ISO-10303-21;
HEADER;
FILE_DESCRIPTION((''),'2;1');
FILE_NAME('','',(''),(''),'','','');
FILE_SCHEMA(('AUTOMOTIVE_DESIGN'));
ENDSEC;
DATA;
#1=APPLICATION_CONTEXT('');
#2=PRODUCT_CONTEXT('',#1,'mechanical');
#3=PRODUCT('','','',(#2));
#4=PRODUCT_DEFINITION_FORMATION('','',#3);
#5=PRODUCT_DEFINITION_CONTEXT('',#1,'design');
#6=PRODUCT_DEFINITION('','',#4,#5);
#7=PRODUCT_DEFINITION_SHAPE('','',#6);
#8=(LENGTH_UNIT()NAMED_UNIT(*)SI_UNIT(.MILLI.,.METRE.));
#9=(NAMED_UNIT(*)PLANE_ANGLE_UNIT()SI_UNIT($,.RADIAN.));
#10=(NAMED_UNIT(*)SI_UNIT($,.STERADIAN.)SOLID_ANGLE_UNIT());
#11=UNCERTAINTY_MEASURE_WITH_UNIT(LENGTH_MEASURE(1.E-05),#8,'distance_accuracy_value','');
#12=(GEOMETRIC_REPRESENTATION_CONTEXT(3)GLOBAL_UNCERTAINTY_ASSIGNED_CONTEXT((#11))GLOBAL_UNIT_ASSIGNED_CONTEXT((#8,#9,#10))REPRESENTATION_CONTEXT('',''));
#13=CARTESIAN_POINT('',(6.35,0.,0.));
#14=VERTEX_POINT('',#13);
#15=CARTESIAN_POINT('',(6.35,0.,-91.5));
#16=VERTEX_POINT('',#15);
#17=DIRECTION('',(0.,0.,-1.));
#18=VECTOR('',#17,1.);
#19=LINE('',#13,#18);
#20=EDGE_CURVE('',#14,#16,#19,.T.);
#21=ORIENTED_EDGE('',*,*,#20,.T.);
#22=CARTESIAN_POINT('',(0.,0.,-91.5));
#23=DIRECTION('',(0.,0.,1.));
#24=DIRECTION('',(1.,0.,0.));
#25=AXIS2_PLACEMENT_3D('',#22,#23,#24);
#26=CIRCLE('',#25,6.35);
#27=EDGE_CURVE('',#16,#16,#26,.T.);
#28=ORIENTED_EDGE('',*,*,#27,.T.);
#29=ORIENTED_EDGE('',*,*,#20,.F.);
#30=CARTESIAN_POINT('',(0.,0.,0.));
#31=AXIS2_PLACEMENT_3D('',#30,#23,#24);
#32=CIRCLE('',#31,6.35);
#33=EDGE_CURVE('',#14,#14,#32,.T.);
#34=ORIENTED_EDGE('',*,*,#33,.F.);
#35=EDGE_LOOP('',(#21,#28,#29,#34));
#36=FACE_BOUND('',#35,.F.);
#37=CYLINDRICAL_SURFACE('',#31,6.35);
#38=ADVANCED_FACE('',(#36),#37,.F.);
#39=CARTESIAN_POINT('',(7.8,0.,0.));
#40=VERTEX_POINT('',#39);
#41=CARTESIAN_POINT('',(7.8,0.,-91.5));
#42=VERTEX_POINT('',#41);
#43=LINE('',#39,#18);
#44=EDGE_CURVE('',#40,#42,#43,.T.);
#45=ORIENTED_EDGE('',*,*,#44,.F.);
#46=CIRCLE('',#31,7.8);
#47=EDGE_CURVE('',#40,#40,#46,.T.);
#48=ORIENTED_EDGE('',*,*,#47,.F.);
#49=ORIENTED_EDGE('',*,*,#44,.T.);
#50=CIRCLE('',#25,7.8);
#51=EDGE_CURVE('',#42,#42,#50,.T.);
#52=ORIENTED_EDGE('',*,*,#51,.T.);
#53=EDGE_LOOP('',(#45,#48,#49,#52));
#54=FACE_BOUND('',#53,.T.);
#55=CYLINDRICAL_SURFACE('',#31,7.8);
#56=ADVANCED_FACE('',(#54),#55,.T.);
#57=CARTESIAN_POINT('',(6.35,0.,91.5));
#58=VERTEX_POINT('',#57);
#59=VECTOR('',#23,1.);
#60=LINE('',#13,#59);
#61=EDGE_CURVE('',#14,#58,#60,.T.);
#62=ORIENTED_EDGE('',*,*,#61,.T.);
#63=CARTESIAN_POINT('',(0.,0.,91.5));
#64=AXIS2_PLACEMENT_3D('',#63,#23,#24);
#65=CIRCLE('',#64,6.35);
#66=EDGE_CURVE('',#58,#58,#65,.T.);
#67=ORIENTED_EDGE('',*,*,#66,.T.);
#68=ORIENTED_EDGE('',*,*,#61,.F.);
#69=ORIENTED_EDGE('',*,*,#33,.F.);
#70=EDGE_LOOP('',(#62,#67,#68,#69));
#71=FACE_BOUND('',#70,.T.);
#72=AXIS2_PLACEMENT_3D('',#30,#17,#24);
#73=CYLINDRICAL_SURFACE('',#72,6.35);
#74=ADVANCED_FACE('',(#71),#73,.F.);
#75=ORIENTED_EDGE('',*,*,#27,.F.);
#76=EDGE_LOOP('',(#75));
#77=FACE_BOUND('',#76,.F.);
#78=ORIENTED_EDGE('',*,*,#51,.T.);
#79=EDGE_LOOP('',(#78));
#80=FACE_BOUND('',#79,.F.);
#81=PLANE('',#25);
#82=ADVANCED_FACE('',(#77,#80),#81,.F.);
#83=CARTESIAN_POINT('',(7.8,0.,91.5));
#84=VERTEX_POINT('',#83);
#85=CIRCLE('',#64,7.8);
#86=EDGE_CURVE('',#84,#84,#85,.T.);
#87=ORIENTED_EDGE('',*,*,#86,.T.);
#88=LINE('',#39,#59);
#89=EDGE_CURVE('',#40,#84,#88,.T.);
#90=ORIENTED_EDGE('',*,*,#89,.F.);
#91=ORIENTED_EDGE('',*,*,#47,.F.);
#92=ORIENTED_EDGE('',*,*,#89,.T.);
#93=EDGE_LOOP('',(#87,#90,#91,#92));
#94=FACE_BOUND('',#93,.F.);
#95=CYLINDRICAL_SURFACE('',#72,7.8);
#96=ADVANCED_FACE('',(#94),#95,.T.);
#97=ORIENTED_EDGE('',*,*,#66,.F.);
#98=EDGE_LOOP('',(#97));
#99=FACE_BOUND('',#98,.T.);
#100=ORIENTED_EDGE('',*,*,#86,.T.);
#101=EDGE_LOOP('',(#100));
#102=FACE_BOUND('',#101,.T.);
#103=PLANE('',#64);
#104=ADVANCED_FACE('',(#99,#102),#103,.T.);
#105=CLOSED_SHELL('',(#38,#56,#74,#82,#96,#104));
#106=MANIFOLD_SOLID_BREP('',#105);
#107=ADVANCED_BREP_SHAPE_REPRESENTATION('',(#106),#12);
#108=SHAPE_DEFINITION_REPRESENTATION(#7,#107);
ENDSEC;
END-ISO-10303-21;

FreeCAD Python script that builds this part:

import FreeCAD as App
import Part
import Sketcher

doc = App.newDocument("Part")
body = doc.addObject("PartDesign::Body", "Body")

# Sketch on XY plane
sketch1 = body.newObject("Sketcher::SketchObject", "Sketch")
sketch1.AttachmentSupport = (doc.getObject("XY_Plane"), [""])
sketch1.MapMode = "FlatFace"
sketch1.addGeometry([
    Part.Circle(App.Vector(0, 0, 0), App.Vector(0, 0, 1), 7.8),
    Part.Circle(App.Vector(0, 0, 0), App.Vector(0, 0, 1), 6.35),
], False)
sketch1.addConstraint([
    Sketcher.Constraint("Coincident", 0, 3, -1, 1),
    Sketcher.Constraint("Coincident", 1, 3, -1, 1),
    Sketcher.Constraint("Diameter", 0, 15.6),
    Sketcher.Constraint("Diameter", 1, 12.7),
])
pad1 = body.newObject("PartDesign::Pad", "Pad")
pad1.Profile = sketch1
pad1.Length = 183
pad1.Midplane = True

doc.recompute()
